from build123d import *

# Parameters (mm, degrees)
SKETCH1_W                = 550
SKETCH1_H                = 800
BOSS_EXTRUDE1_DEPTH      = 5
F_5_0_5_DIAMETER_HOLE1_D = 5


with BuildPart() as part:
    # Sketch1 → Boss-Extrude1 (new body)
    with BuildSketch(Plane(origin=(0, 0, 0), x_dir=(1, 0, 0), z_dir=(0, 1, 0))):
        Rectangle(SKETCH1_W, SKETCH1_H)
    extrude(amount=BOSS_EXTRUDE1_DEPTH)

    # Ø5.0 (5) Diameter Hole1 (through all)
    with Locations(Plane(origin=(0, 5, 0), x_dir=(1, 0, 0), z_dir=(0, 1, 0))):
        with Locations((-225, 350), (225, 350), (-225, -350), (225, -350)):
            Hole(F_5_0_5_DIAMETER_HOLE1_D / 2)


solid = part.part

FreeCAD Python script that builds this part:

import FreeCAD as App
import Part
import Sketcher

doc = App.newDocument("Part")
params = doc.addObject("Spreadsheet::Sheet", "Params")
for row, (alias, value) in enumerate([
    ("sketch1_width", "550 mm"),
    ("sketch1_height", "800 mm"),
    ("pad1_length", "5 mm"),
    ("sketch2_diameter", "5 mm"),
    ("hole_diameter", "5 mm"),
], start=1):
    params.set(f"A{row}", alias)
    params.set(f"B{row}", "=" + value)
    params.setAlias(f"B{row}", alias)

body = doc.addObject("PartDesign::Body", "Body")

# Sketch on XZ plane
sketch1 = doc.addObject("Sketcher::SketchObject", "Sketch")
body.addObject(sketch1)
sketch1.AttachmentSupport = (doc.XZ_Plane, [""])
sketch1.MapMode = "FlatFace"
sketch1.addGeometry([
    Part.LineSegment(App.Vector(-275, -400, 0), App.Vector(-275, 400, 0)),
    Part.LineSegment(App.Vector(-275, 400, 0), App.Vector(275, 400, 0)),
    Part.LineSegment(App.Vector(275, 400, 0), App.Vector(275, -400, 0)),
    Part.LineSegment(App.Vector(275, -400, 0), App.Vector(-275, -400, 0)),
], False)
sketch1.addConstraint([
    Sketcher.Constraint("Coincident", 0, 2, 1, 1),
    Sketcher.Constraint("Coincident", 1, 2, 2, 1),
    Sketcher.Constraint("Coincident", 2, 2, 3, 1),
    Sketcher.Constraint("Coincident", 3, 2, 0, 1),
    Sketcher.Constraint("Vertical", 0),
    Sketcher.Constraint("Horizontal", 1),
    Sketcher.Constraint("Vertical", 2),
    Sketcher.Constraint("Horizontal", 3),
    Sketcher.Constraint("Symmetric", 0, 2, 2, 2, -1, 1),
    Sketcher.Constraint("DistanceX", 1, 1, 1, 2, 550.0),
    Sketcher.Constraint("DistanceY", 0, 1, 0, 2, 800.0),
])
sketch1.setExpression("Constraints[9]", "Params.sketch1_width")
sketch1.setExpression("Constraints[10]", "Params.sketch1_height")
pad1 = doc.addObject("PartDesign::Pad", "Pad")
body.addObject(pad1)
pad1.Profile = sketch1
pad1.setExpression("Length", "Params.pad1_length")
pad1.Reversed = True

# Sketch on XZ plane
sketch2 = doc.addObject("Sketcher::SketchObject", "Sketch001")
body.addObject(sketch2)
sketch2.AttachmentSupport = (doc.XZ_Plane, [""])
sketch2.MapMode = "FlatFace"
sketch2.AttachmentOffset = App.Placement(App.Vector(0, 0, -5), App.Rotation())
sketch2.addGeometry([
    Part.Circle(App.Vector(-225, -350, 0), App.Vector(0, 0, 1), 2.5),
    Part.Circle(App.Vector(225, -350, 0), App.Vector(0, 0, 1), 2.5),
    Part.Circle(App.Vector(-225, 350, 0), App.Vector(0, 0, 1), 2.5),
    Part.Circle(App.Vector(225, 350, 0), App.Vector(0, 0, 1), 2.5),
], False)
sketch2.addConstraint([
    Sketcher.Constraint("Equal", 0, 1),
    Sketcher.Constraint("Equal", 1, 2),
    Sketcher.Constraint("Equal", 2, 3),
    Sketcher.Constraint("Symmetric", 1, 3, 2, 3, -1, 1),
    Sketcher.Constraint("Symmetric", 0, 3, 3, 3, -1, 1),
    Sketcher.Constraint("Symmetric", 0, 3, 1, 3, -2),
    Sketcher.Constraint("Diameter", 0, 5.0),
    Sketcher.Constraint("DistanceX", 0, 3, -1, 1, 225.0),
    Sketcher.Constraint("DistanceY", 0, 3, -1, 1, 350.0),
])
sketch2.setExpression("Constraints[6]", "Params.sketch2_diameter")
doc.recompute()
hole = doc.addObject("PartDesign::Hole", "Hole")
body.addObject(hole)
hole.Profile = sketch2
hole.ThreadType = "None"
hole.setExpression("Diameter", "Params.hole_diameter")
hole.DepthType = "ThroughAll"
hole.Reversed = True

doc.recompute()
